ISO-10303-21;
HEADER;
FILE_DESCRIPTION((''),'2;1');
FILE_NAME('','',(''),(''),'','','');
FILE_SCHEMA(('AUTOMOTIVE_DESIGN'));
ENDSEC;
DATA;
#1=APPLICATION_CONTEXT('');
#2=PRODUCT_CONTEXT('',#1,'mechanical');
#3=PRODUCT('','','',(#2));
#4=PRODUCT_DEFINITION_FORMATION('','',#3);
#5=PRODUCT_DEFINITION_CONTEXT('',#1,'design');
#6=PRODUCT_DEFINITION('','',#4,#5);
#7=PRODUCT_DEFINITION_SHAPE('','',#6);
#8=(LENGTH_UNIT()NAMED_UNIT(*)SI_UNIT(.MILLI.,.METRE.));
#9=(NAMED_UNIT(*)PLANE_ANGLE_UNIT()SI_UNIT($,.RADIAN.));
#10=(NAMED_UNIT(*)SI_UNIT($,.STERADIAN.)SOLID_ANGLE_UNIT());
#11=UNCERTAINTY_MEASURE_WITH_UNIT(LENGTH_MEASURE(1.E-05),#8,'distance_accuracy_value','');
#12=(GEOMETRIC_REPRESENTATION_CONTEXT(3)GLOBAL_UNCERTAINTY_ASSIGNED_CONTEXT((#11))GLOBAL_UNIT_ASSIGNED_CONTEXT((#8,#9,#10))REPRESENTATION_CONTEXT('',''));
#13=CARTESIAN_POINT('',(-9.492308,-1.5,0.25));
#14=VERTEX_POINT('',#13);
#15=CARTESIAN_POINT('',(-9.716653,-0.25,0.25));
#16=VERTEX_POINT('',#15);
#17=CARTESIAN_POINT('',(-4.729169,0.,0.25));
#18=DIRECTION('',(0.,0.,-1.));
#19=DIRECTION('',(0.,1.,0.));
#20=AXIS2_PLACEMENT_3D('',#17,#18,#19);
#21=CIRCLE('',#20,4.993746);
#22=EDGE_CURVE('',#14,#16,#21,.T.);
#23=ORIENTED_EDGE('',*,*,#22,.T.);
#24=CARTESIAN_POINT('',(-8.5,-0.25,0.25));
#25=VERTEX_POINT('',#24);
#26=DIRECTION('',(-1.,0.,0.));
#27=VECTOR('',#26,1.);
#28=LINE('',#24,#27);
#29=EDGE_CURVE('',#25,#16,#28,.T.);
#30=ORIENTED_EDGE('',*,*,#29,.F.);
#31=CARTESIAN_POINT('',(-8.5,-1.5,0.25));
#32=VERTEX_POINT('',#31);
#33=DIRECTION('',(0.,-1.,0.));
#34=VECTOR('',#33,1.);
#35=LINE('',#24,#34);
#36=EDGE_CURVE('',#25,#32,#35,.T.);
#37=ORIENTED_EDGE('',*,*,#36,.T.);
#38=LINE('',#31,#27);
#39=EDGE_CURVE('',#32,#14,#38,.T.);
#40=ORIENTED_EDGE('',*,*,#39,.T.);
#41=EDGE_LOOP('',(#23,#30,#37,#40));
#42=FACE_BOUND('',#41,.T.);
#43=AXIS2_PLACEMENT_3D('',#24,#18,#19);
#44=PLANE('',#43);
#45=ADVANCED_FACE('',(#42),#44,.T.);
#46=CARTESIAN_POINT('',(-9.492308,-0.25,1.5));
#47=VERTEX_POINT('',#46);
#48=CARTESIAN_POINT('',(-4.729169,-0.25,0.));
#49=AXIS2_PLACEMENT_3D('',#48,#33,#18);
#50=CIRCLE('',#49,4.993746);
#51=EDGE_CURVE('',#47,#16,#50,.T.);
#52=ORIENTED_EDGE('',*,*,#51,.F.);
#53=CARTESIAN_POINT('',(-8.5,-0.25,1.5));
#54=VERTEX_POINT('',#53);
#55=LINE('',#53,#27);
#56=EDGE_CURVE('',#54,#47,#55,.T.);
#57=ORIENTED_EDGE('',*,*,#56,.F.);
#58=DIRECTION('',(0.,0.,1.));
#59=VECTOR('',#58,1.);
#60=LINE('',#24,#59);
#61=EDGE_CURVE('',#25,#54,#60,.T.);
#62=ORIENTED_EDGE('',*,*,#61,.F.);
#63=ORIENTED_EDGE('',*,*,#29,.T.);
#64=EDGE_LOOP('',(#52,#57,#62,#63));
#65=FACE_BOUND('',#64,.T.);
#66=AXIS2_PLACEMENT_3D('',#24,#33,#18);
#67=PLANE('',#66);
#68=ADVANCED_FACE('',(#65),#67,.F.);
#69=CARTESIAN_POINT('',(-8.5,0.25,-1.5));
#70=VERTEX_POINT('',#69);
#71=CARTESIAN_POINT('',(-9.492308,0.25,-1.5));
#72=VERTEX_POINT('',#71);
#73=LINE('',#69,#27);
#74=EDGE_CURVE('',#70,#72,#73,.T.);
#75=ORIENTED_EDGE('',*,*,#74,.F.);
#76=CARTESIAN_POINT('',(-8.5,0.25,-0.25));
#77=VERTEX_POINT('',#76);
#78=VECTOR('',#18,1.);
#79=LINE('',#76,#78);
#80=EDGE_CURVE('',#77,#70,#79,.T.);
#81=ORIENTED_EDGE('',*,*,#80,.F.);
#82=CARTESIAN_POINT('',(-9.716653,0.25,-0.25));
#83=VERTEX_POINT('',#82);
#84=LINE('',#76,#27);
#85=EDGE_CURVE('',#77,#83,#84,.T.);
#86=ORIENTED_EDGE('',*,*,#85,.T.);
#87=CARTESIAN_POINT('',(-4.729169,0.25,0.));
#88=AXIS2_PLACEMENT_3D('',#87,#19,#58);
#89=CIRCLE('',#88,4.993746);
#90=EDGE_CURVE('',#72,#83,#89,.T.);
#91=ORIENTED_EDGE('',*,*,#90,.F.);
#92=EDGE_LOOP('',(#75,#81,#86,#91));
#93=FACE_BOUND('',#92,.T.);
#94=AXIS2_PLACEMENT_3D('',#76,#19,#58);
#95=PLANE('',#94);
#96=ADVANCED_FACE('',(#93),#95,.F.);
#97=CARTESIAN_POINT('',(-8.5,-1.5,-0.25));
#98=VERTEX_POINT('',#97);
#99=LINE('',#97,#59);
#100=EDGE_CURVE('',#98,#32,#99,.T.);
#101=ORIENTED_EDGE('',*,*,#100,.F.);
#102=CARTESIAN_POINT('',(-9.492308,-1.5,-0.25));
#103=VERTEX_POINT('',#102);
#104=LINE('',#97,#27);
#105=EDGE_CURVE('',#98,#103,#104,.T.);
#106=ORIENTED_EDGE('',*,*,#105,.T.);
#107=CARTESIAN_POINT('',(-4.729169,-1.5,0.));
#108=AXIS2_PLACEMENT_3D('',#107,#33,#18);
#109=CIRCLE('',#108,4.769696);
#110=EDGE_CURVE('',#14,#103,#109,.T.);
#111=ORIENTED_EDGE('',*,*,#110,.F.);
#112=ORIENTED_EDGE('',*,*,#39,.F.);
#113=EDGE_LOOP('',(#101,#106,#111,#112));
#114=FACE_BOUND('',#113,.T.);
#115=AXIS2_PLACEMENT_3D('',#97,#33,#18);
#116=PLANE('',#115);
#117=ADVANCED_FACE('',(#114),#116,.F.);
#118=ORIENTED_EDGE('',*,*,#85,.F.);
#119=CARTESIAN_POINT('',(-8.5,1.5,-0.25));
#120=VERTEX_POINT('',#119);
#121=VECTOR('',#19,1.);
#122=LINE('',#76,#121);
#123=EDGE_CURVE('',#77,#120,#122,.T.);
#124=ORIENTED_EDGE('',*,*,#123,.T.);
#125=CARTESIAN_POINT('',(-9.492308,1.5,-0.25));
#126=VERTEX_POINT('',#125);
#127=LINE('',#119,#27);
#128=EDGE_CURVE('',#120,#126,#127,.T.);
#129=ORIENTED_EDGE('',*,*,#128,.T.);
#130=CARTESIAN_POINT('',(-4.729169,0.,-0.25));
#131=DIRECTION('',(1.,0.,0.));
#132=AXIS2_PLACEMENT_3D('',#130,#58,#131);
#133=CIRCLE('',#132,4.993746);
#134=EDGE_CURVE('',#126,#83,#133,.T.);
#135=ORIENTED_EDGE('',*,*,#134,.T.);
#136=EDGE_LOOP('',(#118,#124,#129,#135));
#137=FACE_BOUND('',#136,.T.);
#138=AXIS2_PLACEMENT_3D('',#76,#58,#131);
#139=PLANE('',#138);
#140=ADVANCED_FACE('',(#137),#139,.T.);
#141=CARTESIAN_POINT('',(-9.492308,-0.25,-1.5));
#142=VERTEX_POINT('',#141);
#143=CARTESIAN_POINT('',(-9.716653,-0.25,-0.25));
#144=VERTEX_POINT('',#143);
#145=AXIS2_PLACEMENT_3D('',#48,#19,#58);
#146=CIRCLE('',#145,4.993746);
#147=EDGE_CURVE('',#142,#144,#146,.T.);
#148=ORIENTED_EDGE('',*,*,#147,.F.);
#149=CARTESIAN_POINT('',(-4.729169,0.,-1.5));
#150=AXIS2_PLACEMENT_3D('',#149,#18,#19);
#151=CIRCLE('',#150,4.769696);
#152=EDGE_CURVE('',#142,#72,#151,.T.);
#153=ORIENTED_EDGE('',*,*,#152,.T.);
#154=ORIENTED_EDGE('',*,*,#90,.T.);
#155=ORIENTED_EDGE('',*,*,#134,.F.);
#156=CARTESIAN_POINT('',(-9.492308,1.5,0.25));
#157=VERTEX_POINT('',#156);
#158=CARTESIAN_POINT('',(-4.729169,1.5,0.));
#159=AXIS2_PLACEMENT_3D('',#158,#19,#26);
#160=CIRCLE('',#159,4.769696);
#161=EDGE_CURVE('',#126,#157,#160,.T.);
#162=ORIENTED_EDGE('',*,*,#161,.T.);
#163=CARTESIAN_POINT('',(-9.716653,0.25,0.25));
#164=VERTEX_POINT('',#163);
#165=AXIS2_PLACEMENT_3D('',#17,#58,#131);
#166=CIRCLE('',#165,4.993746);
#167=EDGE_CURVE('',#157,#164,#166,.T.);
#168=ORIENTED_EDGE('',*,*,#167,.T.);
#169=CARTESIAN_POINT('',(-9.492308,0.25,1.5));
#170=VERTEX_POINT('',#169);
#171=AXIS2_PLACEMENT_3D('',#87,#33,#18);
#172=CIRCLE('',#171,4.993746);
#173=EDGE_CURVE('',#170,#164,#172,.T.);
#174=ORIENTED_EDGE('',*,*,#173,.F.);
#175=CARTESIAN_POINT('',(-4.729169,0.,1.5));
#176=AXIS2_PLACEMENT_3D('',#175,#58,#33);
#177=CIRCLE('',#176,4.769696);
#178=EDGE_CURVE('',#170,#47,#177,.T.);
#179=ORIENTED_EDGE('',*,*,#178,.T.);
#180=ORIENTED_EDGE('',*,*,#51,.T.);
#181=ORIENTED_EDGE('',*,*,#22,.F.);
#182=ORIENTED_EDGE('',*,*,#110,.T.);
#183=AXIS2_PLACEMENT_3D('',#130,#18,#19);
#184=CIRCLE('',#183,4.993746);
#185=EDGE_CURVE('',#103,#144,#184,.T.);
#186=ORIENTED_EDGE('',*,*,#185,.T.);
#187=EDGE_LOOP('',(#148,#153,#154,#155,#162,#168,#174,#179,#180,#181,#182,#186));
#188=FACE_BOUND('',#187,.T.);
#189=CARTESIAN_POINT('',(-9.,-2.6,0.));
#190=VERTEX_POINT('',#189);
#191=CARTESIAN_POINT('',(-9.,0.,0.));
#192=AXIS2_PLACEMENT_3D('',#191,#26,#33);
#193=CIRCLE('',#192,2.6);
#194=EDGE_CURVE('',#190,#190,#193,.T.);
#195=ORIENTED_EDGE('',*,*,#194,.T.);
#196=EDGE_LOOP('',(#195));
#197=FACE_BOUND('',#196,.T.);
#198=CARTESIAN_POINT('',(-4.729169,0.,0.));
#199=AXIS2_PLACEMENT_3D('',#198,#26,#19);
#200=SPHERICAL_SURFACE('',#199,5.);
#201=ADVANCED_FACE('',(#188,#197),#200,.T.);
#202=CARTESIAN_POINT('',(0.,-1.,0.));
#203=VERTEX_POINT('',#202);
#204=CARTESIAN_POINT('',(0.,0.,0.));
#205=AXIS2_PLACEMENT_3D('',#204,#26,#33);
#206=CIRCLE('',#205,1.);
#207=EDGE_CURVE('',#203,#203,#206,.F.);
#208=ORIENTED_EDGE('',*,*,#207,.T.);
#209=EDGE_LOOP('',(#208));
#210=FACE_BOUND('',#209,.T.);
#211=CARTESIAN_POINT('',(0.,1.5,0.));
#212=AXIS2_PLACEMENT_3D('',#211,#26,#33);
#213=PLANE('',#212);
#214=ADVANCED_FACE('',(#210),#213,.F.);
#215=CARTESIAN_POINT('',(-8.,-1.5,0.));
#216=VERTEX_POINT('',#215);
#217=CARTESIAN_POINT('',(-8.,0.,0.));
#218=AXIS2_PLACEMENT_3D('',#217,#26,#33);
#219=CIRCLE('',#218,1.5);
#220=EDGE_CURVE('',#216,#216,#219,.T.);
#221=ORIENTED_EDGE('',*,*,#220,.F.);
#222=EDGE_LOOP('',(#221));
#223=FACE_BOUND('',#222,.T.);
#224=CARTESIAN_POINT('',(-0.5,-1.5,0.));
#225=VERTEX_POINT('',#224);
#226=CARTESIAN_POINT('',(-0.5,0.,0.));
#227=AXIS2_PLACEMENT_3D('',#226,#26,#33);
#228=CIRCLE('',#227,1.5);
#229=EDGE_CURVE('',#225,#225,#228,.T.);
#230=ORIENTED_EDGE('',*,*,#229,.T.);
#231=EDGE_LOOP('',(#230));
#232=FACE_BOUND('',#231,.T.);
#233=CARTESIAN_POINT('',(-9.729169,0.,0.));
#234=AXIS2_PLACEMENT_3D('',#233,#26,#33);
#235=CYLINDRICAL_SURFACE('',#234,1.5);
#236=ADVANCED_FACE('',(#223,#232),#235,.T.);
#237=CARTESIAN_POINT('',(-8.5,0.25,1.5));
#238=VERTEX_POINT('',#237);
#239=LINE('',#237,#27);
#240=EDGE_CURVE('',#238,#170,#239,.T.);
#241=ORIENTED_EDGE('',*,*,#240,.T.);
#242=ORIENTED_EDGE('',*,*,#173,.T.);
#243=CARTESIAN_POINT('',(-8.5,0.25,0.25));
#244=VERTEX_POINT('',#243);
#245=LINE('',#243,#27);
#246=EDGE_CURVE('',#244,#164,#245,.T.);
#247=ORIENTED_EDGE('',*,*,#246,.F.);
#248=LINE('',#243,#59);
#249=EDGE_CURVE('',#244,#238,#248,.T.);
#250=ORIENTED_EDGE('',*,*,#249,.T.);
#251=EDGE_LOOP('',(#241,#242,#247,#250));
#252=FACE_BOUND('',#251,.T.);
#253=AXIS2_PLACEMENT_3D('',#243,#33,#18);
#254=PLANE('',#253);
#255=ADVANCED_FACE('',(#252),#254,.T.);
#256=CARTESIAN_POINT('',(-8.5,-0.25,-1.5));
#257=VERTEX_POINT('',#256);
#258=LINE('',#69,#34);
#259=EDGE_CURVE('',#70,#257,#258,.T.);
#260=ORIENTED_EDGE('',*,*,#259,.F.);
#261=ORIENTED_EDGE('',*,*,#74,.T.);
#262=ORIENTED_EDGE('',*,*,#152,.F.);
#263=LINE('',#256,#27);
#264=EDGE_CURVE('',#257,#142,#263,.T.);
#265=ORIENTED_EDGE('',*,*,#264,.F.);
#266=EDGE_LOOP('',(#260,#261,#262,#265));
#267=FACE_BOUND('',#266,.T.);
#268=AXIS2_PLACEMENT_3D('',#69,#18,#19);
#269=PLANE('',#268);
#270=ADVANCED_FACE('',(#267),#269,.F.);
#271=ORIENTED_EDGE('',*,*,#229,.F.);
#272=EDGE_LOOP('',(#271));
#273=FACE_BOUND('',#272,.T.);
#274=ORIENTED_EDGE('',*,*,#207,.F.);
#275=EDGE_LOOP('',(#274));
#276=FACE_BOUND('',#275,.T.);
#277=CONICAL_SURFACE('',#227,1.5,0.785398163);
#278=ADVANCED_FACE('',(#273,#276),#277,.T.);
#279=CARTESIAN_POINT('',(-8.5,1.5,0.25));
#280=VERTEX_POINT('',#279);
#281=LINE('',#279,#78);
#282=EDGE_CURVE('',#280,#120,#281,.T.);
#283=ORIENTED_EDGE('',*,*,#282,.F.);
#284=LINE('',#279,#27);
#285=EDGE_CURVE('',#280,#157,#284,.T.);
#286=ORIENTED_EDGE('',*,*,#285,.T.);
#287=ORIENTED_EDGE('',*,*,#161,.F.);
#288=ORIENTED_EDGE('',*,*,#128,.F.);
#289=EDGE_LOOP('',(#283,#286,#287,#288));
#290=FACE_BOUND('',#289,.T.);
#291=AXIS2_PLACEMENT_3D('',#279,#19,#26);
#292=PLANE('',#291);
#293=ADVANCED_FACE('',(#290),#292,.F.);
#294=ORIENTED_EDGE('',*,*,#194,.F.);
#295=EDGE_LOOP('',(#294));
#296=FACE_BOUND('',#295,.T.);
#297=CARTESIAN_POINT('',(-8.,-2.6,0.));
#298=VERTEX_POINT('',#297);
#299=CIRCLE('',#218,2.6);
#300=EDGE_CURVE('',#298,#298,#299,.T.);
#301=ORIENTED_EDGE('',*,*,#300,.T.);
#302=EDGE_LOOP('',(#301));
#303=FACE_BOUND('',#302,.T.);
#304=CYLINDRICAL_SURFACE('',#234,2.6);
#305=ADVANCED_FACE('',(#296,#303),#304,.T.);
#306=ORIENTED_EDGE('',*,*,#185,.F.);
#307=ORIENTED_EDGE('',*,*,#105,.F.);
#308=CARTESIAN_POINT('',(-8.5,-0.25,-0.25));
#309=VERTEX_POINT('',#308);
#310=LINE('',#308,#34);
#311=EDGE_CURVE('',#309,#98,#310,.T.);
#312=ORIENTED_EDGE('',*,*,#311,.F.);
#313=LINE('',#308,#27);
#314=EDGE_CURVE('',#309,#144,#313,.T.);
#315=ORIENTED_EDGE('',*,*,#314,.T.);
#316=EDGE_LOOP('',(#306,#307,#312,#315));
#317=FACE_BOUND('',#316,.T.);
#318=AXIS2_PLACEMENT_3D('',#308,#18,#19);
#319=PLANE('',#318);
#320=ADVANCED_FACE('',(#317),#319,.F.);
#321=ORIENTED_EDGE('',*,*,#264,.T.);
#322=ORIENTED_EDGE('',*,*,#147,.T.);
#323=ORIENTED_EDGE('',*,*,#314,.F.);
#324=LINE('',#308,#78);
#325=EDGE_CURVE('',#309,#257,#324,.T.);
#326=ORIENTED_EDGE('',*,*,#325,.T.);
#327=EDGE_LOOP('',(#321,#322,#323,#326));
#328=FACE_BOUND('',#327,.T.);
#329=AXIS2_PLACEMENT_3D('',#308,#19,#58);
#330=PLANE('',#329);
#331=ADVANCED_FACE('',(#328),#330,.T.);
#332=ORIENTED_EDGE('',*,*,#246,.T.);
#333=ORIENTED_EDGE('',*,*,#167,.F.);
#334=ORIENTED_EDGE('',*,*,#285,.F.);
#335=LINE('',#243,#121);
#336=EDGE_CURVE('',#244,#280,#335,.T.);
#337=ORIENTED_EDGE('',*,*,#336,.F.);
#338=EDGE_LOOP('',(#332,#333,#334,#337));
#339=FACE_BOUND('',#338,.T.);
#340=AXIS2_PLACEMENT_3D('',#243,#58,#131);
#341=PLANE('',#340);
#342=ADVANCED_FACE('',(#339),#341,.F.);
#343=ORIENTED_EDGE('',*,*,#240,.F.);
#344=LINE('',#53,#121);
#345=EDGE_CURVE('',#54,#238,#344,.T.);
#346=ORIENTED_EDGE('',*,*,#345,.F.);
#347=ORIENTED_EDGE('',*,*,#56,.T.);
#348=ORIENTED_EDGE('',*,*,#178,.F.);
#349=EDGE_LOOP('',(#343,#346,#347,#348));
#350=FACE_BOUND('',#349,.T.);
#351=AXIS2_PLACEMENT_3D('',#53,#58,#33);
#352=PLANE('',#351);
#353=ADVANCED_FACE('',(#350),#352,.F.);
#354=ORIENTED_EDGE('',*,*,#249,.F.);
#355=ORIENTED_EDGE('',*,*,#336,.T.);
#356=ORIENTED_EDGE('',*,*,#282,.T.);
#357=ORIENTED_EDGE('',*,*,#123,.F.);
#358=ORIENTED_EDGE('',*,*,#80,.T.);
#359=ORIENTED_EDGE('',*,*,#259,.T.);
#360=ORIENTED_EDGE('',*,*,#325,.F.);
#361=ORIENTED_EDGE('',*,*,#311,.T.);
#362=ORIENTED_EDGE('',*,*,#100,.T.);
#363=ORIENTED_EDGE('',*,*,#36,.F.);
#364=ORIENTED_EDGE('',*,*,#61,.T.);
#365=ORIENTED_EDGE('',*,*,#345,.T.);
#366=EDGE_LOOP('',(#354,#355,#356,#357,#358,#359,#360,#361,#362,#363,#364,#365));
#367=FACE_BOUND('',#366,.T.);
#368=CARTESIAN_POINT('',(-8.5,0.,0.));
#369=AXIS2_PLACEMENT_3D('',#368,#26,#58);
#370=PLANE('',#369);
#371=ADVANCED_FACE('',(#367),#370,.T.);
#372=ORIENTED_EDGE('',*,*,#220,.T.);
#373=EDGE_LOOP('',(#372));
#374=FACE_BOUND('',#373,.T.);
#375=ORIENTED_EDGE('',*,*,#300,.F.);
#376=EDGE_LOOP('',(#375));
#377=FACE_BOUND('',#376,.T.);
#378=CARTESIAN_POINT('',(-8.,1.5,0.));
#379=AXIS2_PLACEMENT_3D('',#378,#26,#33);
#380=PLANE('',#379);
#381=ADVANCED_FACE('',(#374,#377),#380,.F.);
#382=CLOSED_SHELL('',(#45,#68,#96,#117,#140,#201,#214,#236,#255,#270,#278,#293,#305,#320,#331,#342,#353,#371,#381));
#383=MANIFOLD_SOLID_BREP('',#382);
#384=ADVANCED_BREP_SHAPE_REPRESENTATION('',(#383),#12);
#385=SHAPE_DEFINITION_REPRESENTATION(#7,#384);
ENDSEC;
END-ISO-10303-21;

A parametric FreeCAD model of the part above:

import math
import FreeCAD as App
import Part
import Sketcher
from FreeCAD import Vector
Q = App.Units.Quantity


def edges_at(feature, points):
    """Names of the edges that pass closest to the given points."""
    edges = feature.Shape.Edges
    near = lambda p: min(range(len(edges)), key=lambda i: edges[i].distToShape(Part.Vertex(*p))[0])
    return sorted({f"Edge{near(p) + 1}" for p in points})

doc = App.newDocument("Part")
params = doc.addObject("Spreadsheet::Sheet", "Params")
for row, (alias, value) in enumerate([
    ("sketch1_radius", "5 mm"),
    ("sketch1_width", "8 mm"),
    ("sketch1_width2", "1 mm"),
    ("sketch1_height", "1.1 mm"),
    ("sketch1_height2", "1.5 mm"),
    ("revolution_angle", "360 deg"),
    ("sketch2_width", "0.5 mm"),
    ("sketch2_width2", "1.25 mm"),
    ("pocket1_length", "4.5 mm"),
    ("chamfer_size", "0.5 mm"),
], start=1):
    params.set(f"A{row}", alias)
    params.set(f"B{row}", "=" + value)
    params.setAlias(f"B{row}", alias)

body = doc.addObject("PartDesign::Body", "Body")

# Sketch on XY plane
sketch1 = doc.addObject("Sketcher::SketchObject", "Sketch")
body.addObject(sketch1)
sketch1.AttachmentSupport = (doc.XY_Plane, [""])
sketch1.MapMode = "FlatFace"
sketch1.addGeometry(Part.LineSegment(Vector(0, 1.5, 0), Vector(-8, 1.5, 0)), False)
sketch1.addGeometry(Part.LineSegment(Vector(-8, 1.5, 0), Vector(-8, 2.6, 0)), False)
sketch1.addGeometry(Part.LineSegment(Vector(-8, 2.6, 0), Vector(-9, 2.6, 0)), False)
sketch1.addGeometry(Part.ArcOfCircle(Part.Circle(Vector(-4.7, 0, 0), Vector(0, 0, 1), 5), math.radians(149), math.radians(180)), False)
sketch1.addGeometry(Part.LineSegment(Vector(-9.7, 0, 0), Vector(0, 0, 0)), False)
sketch1.addGeometry(Part.LineSegment(Vector(0, 0, 0), Vector(0, 1.5, 0)), False)
sketch1.addConstraint(Sketcher.Constraint("Coincident", 0, 2, 1, 1))
sketch1.addConstraint(Sketcher.Constraint("Coincident", 1, 2, 2, 1))
sketch1.addConstraint(Sketcher.Constraint("Coincident", 2, 2, 3, 1))
sketch1.addConstraint(Sketcher.Constraint("Coincident", 3, 2, 4, 1))
sketch1.addConstraint(Sketcher.Constraint("Coincident", 4, 2, 5, 1))
sketch1.addConstraint(Sketcher.Constraint("Coincident", 5, 2, 0, 1))
sketch1.addConstraint(Sketcher.Constraint("Horizontal", 0))
sketch1.addConstraint(Sketcher.Constraint("Vertical", 1))
sketch1.addConstraint(Sketcher.Constraint("Horizontal", 2))
sketch1.addConstraint(Sketcher.Constraint("Horizontal", 4))
sketch1.addConstraint(Sketcher.Constraint("Vertical", 5))
sketch1.addConstraint(Sketcher.Constraint("Coincident", 4, 2, -1, 1))
sketch1.addConstraint(Sketcher.Constraint("PointOnObject", 3, 3, -1))
sketch1.addConstraint(Sketcher.Constraint("Radius", 3, Q("5 mm")))
sketch1.addConstraint(Sketcher.Constraint("DistanceX", 0, 2, 0, 1, Q("8 mm")))
sketch1.addConstraint(Sketcher.Constraint("DistanceX", 2, 2, 2, 1, Q("1 mm")))
sketch1.addConstraint(Sketcher.Constraint("DistanceY", 1, 1, 1, 2, Q("1.1 mm")))
sketch1.addConstraint(Sketcher.Constraint("DistanceY", 5, 1, 5, 2, Q("1.5 mm")))
sketch1.setExpression("Constraints[13]", "Params.sketch1_radius")
sketch1.setExpression("Constraints[14]", "Params.sketch1_width")
sketch1.setExpression("Constraints[15]", "Params.sketch1_width2")
sketch1.setExpression("Constraints[16]", "Params.sketch1_height")
sketch1.setExpression("Constraints[17]", "Params.sketch1_height2")
revolution = doc.addObject("PartDesign::Revolution", "Revolution")
body.addObject(revolution)
revolution.Profile = sketch1
revolution.ReferenceAxis = (sketch1, ["H_Axis"])
revolution.setExpression("Angle", "Params.revolution_angle")

# Sketch on YZ plane
sketch2 = doc.addObject("Sketcher::SketchObject", "Sketch001")
body.addObject(sketch2)
sketch2.AttachmentSupport = (doc.YZ_Plane, [""])
sketch2.MapMode = "FlatFace"
sketch2.AttachmentOffset = App.Placement(Vector(0, 0, -13), App.Rotation())
sketch2.addGeometry(Part.LineSegment(Vector(1.5, 0.2, 0), Vector(0.2, 0.2, 0)), False)
sketch2.addGeometry(Part.LineSegment(Vector(0.2, 0.2, 0), Vector(0.2, 1.5, 0)), False)
sketch2.addGeometry(Part.LineSegment(Vector(0.2, 1.5, 0), Vector(-0.2, 1.5, 0)), False)
sketch2.addGeometry(Part.LineSegment(Vector(-0.2, 1.5, 0), Vector(-0.2, 0.2, 0)), False)
sketch2.addGeometry(Part.LineSegment(Vector(-0.2, 0.2, 0), Vector(-1.5, 0.2, 0)), False)
sketch2.addGeometry(Part.LineSegment(Vector(-1.5, 0.2, 0), Vector(-1.5, -0.2, 0)), False)
sketch2.addGeometry(Part.LineSegment(Vector(-1.5, -0.2, 0), Vector(-0.2, -0.2, 0)), False)
sketch2.addGeometry(Part.LineSegment(Vector(-0.2, -0.2, 0), Vector(-0.2, -1.5, 0)), False)
sketch2.addGeometry(Part.LineSegment(Vector(-0.2, -1.5, 0), Vector(0.2, -1.5, 0)), False)
sketch2.addGeometry(Part.LineSegment(Vector(0.2, -1.5, 0), Vector(0.2, -0.2, 0)), False)
sketch2.addGeometry(Part.LineSegment(Vector(0.2, -0.2, 0), Vector(1.5, -0.2, 0)), False)
sketch2.addGeometry(Part.LineSegment(Vector(1.5, -0.2, 0), Vector(1.5, 0.2, 0)), False)
sketch2.addConstraint(Sketcher.Constraint("Coincident", 0, 2, 1, 1))
sketch2.addConstraint(Sketcher.Constraint("Coincident", 1, 2, 2, 1))
sketch2.addConstraint(Sketcher.Constraint("Coincident", 2, 2, 3, 1))
sketch2.addConstraint(Sketcher.Constraint("Coincident", 3, 2, 4, 1))
sketch2.addConstraint(Sketcher.Constraint("Coincident", 4, 2, 5, 1))
sketch2.addConstraint(Sketcher.Constraint("Coincident", 5, 2, 6, 1))
sketch2.addConstraint(Sketcher.Constraint("Coincident", 6, 2, 7, 1))
sketch2.addConstraint(Sketcher.Constraint("Coincident", 7, 2, 8, 1))
sketch2.addConstraint(Sketcher.Constraint("Coincident", 8, 2, 9, 1))
sketch2.addConstraint(Sketcher.Constraint("Coincident", 9, 2, 10, 1))
sketch2.addConstraint(Sketcher.Constraint("Coincident", 10, 2, 11, 1))
sketch2.addConstraint(Sketcher.Constraint("Coincident", 11, 2, 0, 1))
sketch2.addConstraint(Sketcher.Constraint("Horizontal", 0))
sketch2.addConstraint(Sketcher.Constraint("Vertical", 1))
sketch2.addConstraint(Sketcher.Constraint("Horizontal", 2))
sketch2.addConstraint(Sketcher.Constraint("Vertical", 3))
sketch2.addConstraint(Sketcher.Constraint("Horizontal", 4))
sketch2.addConstraint(Sketcher.Constraint("Vertical", 5))
sketch2.addConstraint(Sketcher.Constraint("Horizontal", 6))
sketch2.addConstraint(Sketcher.Constraint("Vertical", 7))
sketch2.addConstraint(Sketcher.Constraint("Horizontal", 8))
sketch2.addConstraint(Sketcher.Constraint("Vertical", 9))
sketch2.addConstraint(Sketcher.Constraint("Horizontal", 10))
sketch2.addConstraint(Sketcher.Constraint("Vertical", 11))
sketch2.addConstraint(Sketcher.Constraint("Symmetric", 0, 2, 6, 2, -1, 1))
sketch2.addConstraint(Sketcher.Constraint("Symmetric", 2, 2, 8, 2, -1, 1))
sketch2.addConstraint(Sketcher.Constraint("Symmetric", 4, 2, 10, 2, -1, 1))
sketch2.addConstraint(Sketcher.Constraint("Symmetric", 0, 2, 3, 2, -2))
sketch2.addConstraint(Sketcher.Constraint("Equal", 10, 1))
sketch2.addConstraint(Sketcher.Constraint("Equal", 8, 5))
sketch2.addConstraint(Sketcher.Constraint("DistanceX", 2, 2, 2, 1, Q("0.5 mm")))
sketch2.addConstraint(Sketcher.Constraint("DistanceX", 0, 2, 0, 1, Q("1.25 mm")))
sketch2.setExpression("Constraints[30]", "Params.sketch2_width")
sketch2.setExpression("Constraints[31]", "Params.sketch2_width2")
pocket1 = doc.addObject("PartDesign::Pocket", "Pocket")
body.addObject(pocket1)
pocket1.Profile = sketch2
pocket1.setExpression("Length", "Params.pocket1_length")
pocket1.Reversed = True
doc.recompute()

chamfer = doc.addObject("PartDesign::Chamfer", "Chamfer")
body.addObject(chamfer)
chamfer.Base = (pocket1, edges_at(pocket1, [(0, 1.5, 0)]))
chamfer.setExpression("Size", "Params.chamfer_size")

doc.recompute()
